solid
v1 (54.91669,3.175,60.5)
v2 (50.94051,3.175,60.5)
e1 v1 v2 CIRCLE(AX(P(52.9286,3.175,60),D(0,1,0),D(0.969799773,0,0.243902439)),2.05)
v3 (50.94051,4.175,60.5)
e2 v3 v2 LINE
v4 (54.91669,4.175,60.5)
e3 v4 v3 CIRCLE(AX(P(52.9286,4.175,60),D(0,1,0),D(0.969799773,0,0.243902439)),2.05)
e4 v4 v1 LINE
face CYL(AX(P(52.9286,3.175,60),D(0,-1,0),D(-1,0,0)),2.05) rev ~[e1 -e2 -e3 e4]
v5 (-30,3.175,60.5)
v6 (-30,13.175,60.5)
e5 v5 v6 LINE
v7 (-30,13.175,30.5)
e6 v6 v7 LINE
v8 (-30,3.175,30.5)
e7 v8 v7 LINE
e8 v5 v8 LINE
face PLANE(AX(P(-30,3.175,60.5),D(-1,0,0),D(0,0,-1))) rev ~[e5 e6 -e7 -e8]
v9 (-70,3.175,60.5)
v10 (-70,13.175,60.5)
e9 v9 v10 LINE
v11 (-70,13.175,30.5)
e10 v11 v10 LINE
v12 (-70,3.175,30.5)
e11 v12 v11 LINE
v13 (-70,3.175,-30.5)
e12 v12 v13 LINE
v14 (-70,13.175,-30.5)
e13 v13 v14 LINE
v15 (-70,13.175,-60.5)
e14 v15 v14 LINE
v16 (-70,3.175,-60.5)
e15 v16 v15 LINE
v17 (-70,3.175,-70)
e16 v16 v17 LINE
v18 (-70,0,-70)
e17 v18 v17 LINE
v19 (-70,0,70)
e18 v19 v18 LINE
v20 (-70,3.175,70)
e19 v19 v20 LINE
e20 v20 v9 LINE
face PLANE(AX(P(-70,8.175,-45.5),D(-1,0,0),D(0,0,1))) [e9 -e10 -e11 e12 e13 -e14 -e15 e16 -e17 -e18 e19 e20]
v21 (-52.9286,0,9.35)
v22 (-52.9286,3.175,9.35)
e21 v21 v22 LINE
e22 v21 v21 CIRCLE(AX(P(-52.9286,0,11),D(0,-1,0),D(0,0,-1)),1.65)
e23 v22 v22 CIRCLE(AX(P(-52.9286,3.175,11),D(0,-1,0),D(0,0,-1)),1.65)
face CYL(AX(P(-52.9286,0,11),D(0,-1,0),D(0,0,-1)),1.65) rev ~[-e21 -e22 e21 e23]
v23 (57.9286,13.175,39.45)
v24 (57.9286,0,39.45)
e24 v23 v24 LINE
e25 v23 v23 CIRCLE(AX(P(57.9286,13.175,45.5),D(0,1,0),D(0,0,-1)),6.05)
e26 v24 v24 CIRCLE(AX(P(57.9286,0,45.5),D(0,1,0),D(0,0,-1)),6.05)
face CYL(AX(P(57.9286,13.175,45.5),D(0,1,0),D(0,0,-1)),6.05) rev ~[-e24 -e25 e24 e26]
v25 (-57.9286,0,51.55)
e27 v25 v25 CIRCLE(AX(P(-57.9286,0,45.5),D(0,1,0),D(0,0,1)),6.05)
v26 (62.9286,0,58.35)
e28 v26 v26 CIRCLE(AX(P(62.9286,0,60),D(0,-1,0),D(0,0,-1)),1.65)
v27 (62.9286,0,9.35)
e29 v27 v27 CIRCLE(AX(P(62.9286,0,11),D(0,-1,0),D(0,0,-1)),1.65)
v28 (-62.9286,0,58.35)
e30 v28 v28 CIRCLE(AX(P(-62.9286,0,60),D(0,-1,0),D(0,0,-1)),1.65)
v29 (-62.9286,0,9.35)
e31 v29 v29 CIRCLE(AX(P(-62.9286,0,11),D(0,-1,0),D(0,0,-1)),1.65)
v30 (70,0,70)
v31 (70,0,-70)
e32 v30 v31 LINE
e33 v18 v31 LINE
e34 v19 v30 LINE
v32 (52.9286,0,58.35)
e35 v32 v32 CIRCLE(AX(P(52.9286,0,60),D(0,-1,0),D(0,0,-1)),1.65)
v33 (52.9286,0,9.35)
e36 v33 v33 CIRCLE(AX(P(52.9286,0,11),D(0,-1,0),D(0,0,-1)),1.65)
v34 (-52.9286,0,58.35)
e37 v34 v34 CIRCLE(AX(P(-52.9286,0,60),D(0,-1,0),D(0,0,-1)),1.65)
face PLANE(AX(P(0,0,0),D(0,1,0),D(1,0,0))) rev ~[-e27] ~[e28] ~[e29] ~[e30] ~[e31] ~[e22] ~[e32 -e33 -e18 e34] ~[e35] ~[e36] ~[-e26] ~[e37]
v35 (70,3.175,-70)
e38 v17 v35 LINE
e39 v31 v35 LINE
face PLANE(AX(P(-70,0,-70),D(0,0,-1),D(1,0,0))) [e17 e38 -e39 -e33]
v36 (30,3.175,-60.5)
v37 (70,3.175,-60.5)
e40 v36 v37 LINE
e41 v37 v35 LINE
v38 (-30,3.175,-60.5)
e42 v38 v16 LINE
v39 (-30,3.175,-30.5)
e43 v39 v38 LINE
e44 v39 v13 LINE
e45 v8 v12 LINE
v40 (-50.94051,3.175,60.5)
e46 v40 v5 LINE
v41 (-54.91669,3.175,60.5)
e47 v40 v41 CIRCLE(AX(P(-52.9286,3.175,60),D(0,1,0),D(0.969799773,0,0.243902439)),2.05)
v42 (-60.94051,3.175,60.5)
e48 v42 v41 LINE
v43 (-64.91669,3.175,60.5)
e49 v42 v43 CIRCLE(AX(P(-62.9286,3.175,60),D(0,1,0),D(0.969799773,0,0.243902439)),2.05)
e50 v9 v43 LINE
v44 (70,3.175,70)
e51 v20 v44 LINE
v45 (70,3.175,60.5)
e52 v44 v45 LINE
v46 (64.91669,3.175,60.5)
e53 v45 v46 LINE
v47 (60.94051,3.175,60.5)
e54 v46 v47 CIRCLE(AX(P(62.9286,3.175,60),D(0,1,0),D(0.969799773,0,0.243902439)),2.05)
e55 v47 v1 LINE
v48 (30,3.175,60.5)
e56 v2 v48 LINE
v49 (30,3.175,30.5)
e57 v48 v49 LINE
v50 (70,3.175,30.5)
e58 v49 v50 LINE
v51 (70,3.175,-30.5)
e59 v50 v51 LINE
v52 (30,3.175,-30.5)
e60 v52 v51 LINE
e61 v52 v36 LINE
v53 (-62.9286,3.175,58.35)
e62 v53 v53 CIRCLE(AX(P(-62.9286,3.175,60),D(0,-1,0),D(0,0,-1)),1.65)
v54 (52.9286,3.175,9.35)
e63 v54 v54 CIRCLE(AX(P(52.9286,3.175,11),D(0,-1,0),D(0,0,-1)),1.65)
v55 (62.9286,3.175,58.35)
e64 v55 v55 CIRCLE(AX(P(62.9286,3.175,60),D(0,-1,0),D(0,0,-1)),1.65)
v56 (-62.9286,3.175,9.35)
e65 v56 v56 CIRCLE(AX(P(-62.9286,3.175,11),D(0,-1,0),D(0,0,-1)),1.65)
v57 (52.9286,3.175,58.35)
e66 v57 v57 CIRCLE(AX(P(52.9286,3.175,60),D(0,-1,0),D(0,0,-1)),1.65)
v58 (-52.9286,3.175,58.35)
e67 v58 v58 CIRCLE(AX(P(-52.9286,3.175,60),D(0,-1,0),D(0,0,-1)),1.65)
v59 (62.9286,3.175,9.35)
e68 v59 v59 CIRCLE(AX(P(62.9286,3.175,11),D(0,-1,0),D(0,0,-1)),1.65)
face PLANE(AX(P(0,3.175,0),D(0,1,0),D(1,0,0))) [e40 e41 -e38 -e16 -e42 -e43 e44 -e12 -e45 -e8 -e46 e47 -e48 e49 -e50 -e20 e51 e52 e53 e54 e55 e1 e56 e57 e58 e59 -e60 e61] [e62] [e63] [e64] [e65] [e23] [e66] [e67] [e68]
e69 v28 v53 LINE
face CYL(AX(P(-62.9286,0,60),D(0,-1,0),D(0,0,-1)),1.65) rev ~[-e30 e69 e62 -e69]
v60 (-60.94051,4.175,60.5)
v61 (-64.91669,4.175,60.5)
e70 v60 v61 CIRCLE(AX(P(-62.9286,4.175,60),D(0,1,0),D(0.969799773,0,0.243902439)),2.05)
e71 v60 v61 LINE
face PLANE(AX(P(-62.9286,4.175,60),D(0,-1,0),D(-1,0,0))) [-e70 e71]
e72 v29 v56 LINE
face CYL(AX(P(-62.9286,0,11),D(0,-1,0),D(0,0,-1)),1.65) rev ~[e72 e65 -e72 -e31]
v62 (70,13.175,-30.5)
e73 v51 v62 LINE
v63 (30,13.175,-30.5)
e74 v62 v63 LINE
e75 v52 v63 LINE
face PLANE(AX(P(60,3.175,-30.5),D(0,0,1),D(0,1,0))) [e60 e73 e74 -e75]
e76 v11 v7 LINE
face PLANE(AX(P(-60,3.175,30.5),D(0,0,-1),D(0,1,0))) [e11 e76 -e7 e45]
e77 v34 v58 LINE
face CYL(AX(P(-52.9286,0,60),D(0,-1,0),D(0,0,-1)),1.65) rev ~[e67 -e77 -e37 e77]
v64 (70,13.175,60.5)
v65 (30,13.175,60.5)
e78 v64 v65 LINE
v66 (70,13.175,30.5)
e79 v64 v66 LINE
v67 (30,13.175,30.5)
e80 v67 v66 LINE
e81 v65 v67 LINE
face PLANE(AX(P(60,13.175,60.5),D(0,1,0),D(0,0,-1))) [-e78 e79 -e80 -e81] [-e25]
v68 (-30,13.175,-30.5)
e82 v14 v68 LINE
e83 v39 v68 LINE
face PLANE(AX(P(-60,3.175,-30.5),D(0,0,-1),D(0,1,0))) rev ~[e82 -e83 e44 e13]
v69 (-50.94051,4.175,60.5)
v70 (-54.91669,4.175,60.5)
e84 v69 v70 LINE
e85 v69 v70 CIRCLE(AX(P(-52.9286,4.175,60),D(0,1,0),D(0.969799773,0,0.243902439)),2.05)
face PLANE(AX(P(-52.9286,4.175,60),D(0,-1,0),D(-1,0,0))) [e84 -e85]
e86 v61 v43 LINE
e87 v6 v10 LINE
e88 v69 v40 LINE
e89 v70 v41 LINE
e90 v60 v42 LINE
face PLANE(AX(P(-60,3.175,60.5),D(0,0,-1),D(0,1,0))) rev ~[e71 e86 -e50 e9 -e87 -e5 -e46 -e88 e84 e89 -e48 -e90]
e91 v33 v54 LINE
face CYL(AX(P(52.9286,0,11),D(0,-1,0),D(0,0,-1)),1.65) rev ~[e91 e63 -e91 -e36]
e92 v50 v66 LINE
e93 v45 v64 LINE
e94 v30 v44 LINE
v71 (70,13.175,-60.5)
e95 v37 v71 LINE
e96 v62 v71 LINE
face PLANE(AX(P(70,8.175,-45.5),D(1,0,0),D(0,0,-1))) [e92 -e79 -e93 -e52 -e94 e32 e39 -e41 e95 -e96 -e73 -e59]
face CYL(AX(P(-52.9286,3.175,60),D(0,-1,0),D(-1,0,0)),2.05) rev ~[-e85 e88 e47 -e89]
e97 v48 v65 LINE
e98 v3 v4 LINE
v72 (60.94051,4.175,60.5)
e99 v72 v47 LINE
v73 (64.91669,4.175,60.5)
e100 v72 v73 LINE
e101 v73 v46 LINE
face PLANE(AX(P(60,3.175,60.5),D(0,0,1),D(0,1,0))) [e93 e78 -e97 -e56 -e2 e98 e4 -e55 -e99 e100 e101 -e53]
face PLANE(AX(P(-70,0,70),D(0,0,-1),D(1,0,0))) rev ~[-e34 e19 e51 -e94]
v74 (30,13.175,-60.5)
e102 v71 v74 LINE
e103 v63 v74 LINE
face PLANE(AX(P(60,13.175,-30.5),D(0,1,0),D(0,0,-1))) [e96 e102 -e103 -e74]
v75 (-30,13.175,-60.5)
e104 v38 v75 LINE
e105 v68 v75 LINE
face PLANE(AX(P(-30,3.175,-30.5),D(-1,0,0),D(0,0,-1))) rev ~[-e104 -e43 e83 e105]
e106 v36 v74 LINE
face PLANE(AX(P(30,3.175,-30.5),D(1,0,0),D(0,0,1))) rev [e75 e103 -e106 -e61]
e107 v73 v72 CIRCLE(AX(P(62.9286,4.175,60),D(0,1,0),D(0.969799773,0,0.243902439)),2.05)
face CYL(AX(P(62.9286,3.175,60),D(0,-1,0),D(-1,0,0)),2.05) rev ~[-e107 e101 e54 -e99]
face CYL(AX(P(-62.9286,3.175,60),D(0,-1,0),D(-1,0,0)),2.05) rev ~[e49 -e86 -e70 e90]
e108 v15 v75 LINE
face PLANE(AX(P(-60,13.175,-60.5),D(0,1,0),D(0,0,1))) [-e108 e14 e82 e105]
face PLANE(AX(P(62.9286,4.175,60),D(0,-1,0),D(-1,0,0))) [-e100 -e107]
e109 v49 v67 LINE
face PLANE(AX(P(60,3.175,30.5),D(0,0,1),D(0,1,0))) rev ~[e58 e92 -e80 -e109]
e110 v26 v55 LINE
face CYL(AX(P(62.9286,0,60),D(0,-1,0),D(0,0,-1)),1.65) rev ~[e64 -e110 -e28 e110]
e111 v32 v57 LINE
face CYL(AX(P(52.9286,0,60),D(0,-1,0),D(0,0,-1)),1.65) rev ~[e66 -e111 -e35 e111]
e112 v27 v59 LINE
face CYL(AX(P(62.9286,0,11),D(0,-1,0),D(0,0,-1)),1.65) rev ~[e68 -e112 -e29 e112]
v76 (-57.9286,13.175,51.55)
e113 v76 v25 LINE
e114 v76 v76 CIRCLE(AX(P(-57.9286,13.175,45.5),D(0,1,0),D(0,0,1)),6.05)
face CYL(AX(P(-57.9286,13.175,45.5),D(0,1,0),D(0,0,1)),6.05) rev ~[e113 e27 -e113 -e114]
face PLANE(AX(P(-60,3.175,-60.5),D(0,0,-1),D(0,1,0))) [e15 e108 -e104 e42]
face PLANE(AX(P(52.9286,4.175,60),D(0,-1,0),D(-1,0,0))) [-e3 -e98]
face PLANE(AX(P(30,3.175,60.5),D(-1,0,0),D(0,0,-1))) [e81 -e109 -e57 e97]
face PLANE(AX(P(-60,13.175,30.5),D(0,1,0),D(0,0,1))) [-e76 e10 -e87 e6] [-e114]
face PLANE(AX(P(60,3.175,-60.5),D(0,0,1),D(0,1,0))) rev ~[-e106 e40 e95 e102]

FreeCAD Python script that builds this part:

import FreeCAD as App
import Part
import Sketcher
from FreeCAD import Vector

doc = App.newDocument("Part")
body = doc.addObject("PartDesign::Body", "Body")

# Sketch on XZ plane
sketch1 = doc.addObject("Sketcher::SketchObject", "Sketch")
body.addObject(sketch1)
sketch1.AttachmentSupport = (doc.XZ_Plane, [""])
sketch1.MapMode = "FlatFace"
sketch1.addGeometry([
    Part.LineSegment(Vector(-70, -70, 0), Vector(-70, 70, 0)),
    Part.LineSegment(Vector(-70, 70, 0), Vector(70, 70, 0)),
    Part.LineSegment(Vector(70, 70, 0), Vector(70, -70, 0)),
    Part.LineSegment(Vector(70, -70, 0), Vector(-70, -70, 0)),
], False)
sketch1.addConstraint([
    Sketcher.Constraint("Coincident", 0, 2, 1, 1),
    Sketcher.Constraint("Coincident", 1, 2, 2, 1),
    Sketcher.Constraint("Coincident", 2, 2, 3, 1),
    Sketcher.Constraint("Coincident", 3, 2, 0, 1),
    Sketcher.Constraint("Vertical", 0),
    Sketcher.Constraint("Horizontal", 1),
    Sketcher.Constraint("Vertical", 2),
    Sketcher.Constraint("Horizontal", 3),
    Sketcher.Constraint("Symmetric", 0, 2, 2, 2, -1, 1),
    Sketcher.Constraint("Equal", 3, 0),
    Sketcher.Constraint("DistanceX", 1, 1, 1, 2, 140.0),
])
pad1 = doc.addObject("PartDesign::Pad", "Pad")
body.addObject(pad1)
pad1.Profile = sketch1
pad1.Length = 3.175
pad1.Reversed = True

# Sketch on XZ plane
sketch2 = doc.addObject("Sketcher::SketchObject", "Sketch001")
body.addObject(sketch2)
sketch2.AttachmentSupport = (doc.XZ_Plane, [""])
sketch2.MapMode = "FlatFace"
sketch2.AttachmentOffset = App.Placement(Vector(0, 0, -3.175), App.Rotation())
sketch2.addGeometry([
    Part.LineSegment(Vector(30, 30, 0), Vector(30, 60, 0)),  # 0
    Part.LineSegment(Vector(30, 60, 0), Vector(60, 60, 0)),  # 1
    Part.LineSegment(Vector(60, 60, 0), Vector(60, 30, 0)),  # 2
    Part.LineSegment(Vector(60, 30, 0), Vector(30, 30, 0)),  # 3
    Part.LineSegment(Vector(-60, 30, 0), Vector(-60, 60, 0)),  # 4
    Part.LineSegment(Vector(-60, 60, 0), Vector(-30, 60, 0)),  # 5
    Part.LineSegment(Vector(-30, 60, 0), Vector(-30, 30, 0)),  # 6
    Part.LineSegment(Vector(-30, 30, 0), Vector(-60, 30, 0)),  # 7
    Part.LineSegment(Vector(-60, -60, 0), Vector(-60, -30, 0)),  # 8
    Part.LineSegment(Vector(-60, -30, 0), Vector(-30, -30, 0)),  # 9
    Part.LineSegment(Vector(-30, -30, 0), Vector(-30, -60, 0)),  # 10
    Part.LineSegment(Vector(-30, -60, 0), Vector(-60, -60, 0)),  # 11
], False)
sketch2.addConstraint([
    Sketcher.Constraint("Coincident", 0, 2, 1, 1),
    Sketcher.Constraint("Coincident", 1, 2, 2, 1),
    Sketcher.Constraint("Coincident", 2, 2, 3, 1),
    Sketcher.Constraint("Coincident", 3, 2, 0, 1),
    Sketcher.Constraint("Coincident", 4, 2, 5, 1),
    Sketcher.Constraint("Coincident", 5, 2, 6, 1),
    Sketcher.Constraint("Coincident", 6, 2, 7, 1),
    Sketcher.Constraint("Coincident", 7, 2, 4, 1),
    Sketcher.Constraint("Coincident", 8, 2, 9, 1),
    Sketcher.Constraint("Coincident", 9, 2, 10, 1),
    Sketcher.Constraint("Coincident", 10, 2, 11, 1),
    Sketcher.Constraint("Coincident", 11, 2, 8, 1),
    Sketcher.Constraint("Vertical", 0),
    Sketcher.Constraint("Horizontal", 1),
    Sketcher.Constraint("Vertical", 2),
    Sketcher.Constraint("Horizontal", 3),
    Sketcher.Constraint("Vertical", 4),
    Sketcher.Constraint("Horizontal", 5),
    Sketcher.Constraint("Vertical", 6),
    Sketcher.Constraint("Horizontal", 7),
    Sketcher.Constraint("Vertical", 8),
    Sketcher.Constraint("Horizontal", 9),
    Sketcher.Constraint("Vertical", 10),
    Sketcher.Constraint("Horizontal", 11),
    Sketcher.Constraint("Symmetric", 2, 2, 8, 2, -1, 1),
    Sketcher.Constraint("Symmetric", 0, 2, 10, 2, -1, 1),
    Sketcher.Constraint("Symmetric", 1, 2, 4, 2, -2),
    Sketcher.Constraint("Symmetric", 3, 2, 6, 2, -2),
    Sketcher.Constraint("Equal", 11, 0),
    Sketcher.Constraint("DistanceX", 1, 1, 1, 2, 30.0),
    Sketcher.Constraint("DistanceX", -1, 1, 0, 2, 30.0),
    Sketcher.Constraint("DistanceY", 8, 2, 7, 2, 61.0),
])
pad2 = doc.addObject("PartDesign::Pad", "Pad001")
body.addObject(pad2)
pad2.Profile = sketch2
pad2.Length = 10
pad2.Reversed = True

# Sketch on YZ plane
sketch3 = doc.addObject("Sketcher::SketchObject", "Sketch002")
body.addObject(sketch3)
sketch3.AttachmentSupport = (doc.YZ_Plane, [""])
sketch3.MapMode = "FlatFace"
sketch3.AttachmentOffset = App.Placement(Vector(0, 0, -60), App.Rotation())
sketch3.addGeometry([
    Part.LineSegment(Vector(13, 30, 0), Vector(3, 30, 0)),
    Part.LineSegment(Vector(3, 30, 0), Vector(3, 60, 0)),
    Part.LineSegment(Vector(3, 60, 0), Vector(13, 60, 0)),
    Part.LineSegment(Vector(13, 60, 0), Vector(13, 30, 0)),
], False)
sketch3.addConstraint([
    Sketcher.Constraint("Coincident", 0, 2, 1, 1),
    Sketcher.Constraint("Coincident", 1, 2, 2, 1),
    Sketcher.Constraint("Coincident", 2, 2, 3, 1),
    Sketcher.Constraint("Coincident", 3, 2, 0, 1),
    Sketcher.Constraint("Horizontal", 0),
    Sketcher.Constraint("Vertical", 1),
    Sketcher.Constraint("Horizontal", 2),
    Sketcher.Constraint("Vertical", 3),
    Sketcher.Constraint("DistanceX", 0, 2, 0, 1, 10.0),
    Sketcher.Constraint("DistanceY", 1, 1, 1, 2, 30.0),
    Sketcher.Constraint("DistanceY", -1, 1, 0, 2, 30.5),
    Sketcher.Constraint("DistanceX", -1, 1, 0, 2, 3.175),
])
pad3 = doc.addObject("PartDesign::Pad", "Pad002")
body.addObject(pad3)
pad3.Profile = sketch3
pad3.Length = 10
pad3.Reversed = True

# Sketch on YZ plane
sketch4 = doc.addObject("Sketcher::SketchObject", "Sketch003")
body.addObject(sketch4)
sketch4.AttachmentSupport = (doc.YZ_Plane, [""])
sketch4.MapMode = "FlatFace"
sketch4.AttachmentOffset = App.Placement(Vector(0, 0, 60), App.Rotation())
sketch4.addGeometry([
    Part.LineSegment(Vector(13, 60, 0), Vector(3, 60, 0)),
    Part.LineSegment(Vector(3, 60, 0), Vector(3, 30, 0)),
    Part.LineSegment(Vector(3, 30, 0), Vector(13, 30, 0)),
    Part.LineSegment(Vector(13, 30, 0), Vector(13, 60, 0)),
], False)
sketch4.addConstraint([
    Sketcher.Constraint("Coincident", 0, 2, 1, 1),
    Sketcher.Constraint("Coincident", 1, 2, 2, 1),
    Sketcher.Constraint("Coincident", 2, 2, 3, 1),
    Sketcher.Constraint("Coincident", 3, 2, 0, 1),
    Sketcher.Constraint("Horizontal", 0),
    Sketcher.Constraint("Vertical", 1),
    Sketcher.Constraint("Horizontal", 2),
    Sketcher.Constraint("Vertical", 3),
    Sketcher.Constraint("DistanceX", 0, 2, 0, 1, 10.0),
    Sketcher.Constraint("DistanceY", 1, 2, 1, 1, 30.0),
    Sketcher.Constraint("DistanceY", -1, 1, 0, 2, 60.5),
    Sketcher.Constraint("DistanceX", -1, 1, 0, 2, 3.175),
])
pad4 = doc.addObject("PartDesign::Pad", "Pad003")
body.addObject(pad4)
pad4.Profile = sketch4
pad4.Length = 10
doc.recompute()

mirrored = doc.addObject("PartDesign::Mirrored", "Mirrored")
body.addObject(mirrored)
mirrored.Originals = [pad2]
mirrored.MirrorPlane = (doc.YZ_Plane, [""])
body.Tip = mirrored

# Sketch on YZ plane
sketch5 = doc.addObject("Sketcher::SketchObject", "Sketch004")
body.addObject(sketch5)
sketch5.AttachmentSupport = (doc.YZ_Plane, [""])
sketch5.MapMode = "FlatFace"
sketch5.AttachmentOffset = App.Placement(Vector(0, 0, 60), App.Rotation())
sketch5.addGeometry([
    Part.LineSegment(Vector(13, -30, 0), Vector(3, -30, 0)),
    Part.LineSegment(Vector(3, -30, 0), Vector(3, -60, 0)),
    Part.LineSegment(Vector(3, -60, 0), Vector(13, -60, 0)),
    Part.LineSegment(Vector(13, -60, 0), Vector(13, -30, 0)),
], False)
sketch5.addConstraint([
    Sketcher.Constraint("Coincident", 0, 2, 1, 1),
    Sketcher.Constraint("Coincident", 1, 2, 2, 1),
    Sketcher.Constraint("Coincident", 2, 2, 3, 1),
    Sketcher.Constraint("Coincident", 3, 2, 0, 1),
    Sketcher.Constraint("Horizontal", 0),
    Sketcher.Constraint("Vertical", 1),
    Sketcher.Constraint("Horizontal", 2),
    Sketcher.Constraint("Vertical", 3),
    Sketcher.Constraint("DistanceX", 0, 2, 0, 1, 10.0),
    Sketcher.Constraint("DistanceY", 1, 2, 1, 1, 30.0),
    Sketcher.Constraint("DistanceY", 0, 2, -1, 1, 30.5),
    Sketcher.Constraint("DistanceX", -1, 1, 0, 2, 3.175),
])
pad5 = doc.addObject("PartDesign::Pad", "Pad004")
body.addObject(pad5)
pad5.Profile = sketch5
pad5.Length = 10

# Sketch on YZ plane
sketch6 = doc.addObject("Sketcher::SketchObject", "Sketch005")
body.addObject(sketch6)
sketch6.AttachmentSupport = (doc.YZ_Plane, [""])
sketch6.MapMode = "FlatFace"
sketch6.AttachmentOffset = App.Placement(Vector(0, 0, -60), App.Rotation())
sketch6.addGeometry([
    Part.LineSegment(Vector(13, -60, 0), Vector(3, -60, 0)),
    Part.LineSegment(Vector(3, -60, 0), Vector(3, -30, 0)),
    Part.LineSegment(Vector(3, -30, 0), Vector(13, -30, 0)),
    Part.LineSegment(Vector(13, -30, 0), Vector(13, -60, 0)),
], False)
sketch6.addConstraint([
    Sketcher.Constraint("Coincident", 0, 2, 1, 1),
    Sketcher.Constraint("Coincident", 1, 2, 2, 1),
    Sketcher.Constraint("Coincident", 2, 2, 3, 1),
    Sketcher.Constraint("Coincident", 3, 2, 0, 1),
    Sketcher.Constraint("Horizontal", 0),
    Sketcher.Constraint("Vertical", 1),
    Sketcher.Constraint("Horizontal", 2),
    Sketcher.Constraint("Vertical", 3),
    Sketcher.Constraint("DistanceX", 0, 2, 0, 1, 10.0),
    Sketcher.Constraint("DistanceY", 1, 1, 1, 2, 30.0),
    Sketcher.Constraint("DistanceY", 0, 2, -1, 1, 60.5),
    Sketcher.Constraint("DistanceX", -1, 1, 0, 2, 3.175),
])
pad6 = doc.addObject("PartDesign::Pad", "Pad005")
body.addObject(pad6)
pad6.Profile = sketch6
pad6.Length = 10
pad6.Reversed = True

# Sketch on XZ plane
sketch7 = doc.addObject("Sketcher::SketchObject", "Sketch006")
body.addObject(sketch7)
sketch7.AttachmentSupport = (doc.XZ_Plane, [""])
sketch7.MapMode = "FlatFace"
sketch7.AttachmentOffset = App.Placement(Vector(0, 0, -13.175), App.Rotation())
sketch7.addGeometry([
    Part.Circle(Vector(-58, 46, 0), Vector(0, 0, 1), 6),
    Part.Circle(Vector(58, 46, 0), Vector(0, 0, 1), 6),
], False)
sketch7.addConstraint([
    Sketcher.Constraint("Equal", 0, 1),
    Sketcher.Constraint("Symmetric", 0, 3, 1, 3, -2),
    Sketcher.Constraint("Diameter", 0, 12.1),
    Sketcher.Constraint("DistanceY", -1, 1, 0, 3, 45.5),
    Sketcher.Constraint("DistanceX", 0, 3, -1, 1, 57.9286),
])
pocket1 = doc.addObject("PartDesign::Pocket", "Pocket")
body.addObject(pocket1)
pocket1.Profile = sketch7
pocket1.Length = 13.175
pocket1.Reversed = True

# Sketch on XZ plane
sketch8 = doc.addObject("Sketcher::SketchObject", "Sketch007")
body.addObject(sketch8)
sketch8.AttachmentSupport = (doc.XZ_Plane, [""])
sketch8.MapMode = "FlatFace"
sketch8.addGeometry([
    Part.Circle(Vector(62.9, 11, 0), Vector(0, 0, 1), 1.6),  # 0
    Part.Circle(Vector(52.9, 11, 0), Vector(0, 0, 1), 1.6),  # 1
    Part.Circle(Vector(62.9, 60, 0), Vector(0, 0, 1), 1.6),  # 2
    Part.Circle(Vector(52.9, 60, 0), Vector(0, 0, 1), 1.6),  # 3
    Part.Circle(Vector(-52.9, 11, 0), Vector(0, 0, 1), 1.6),  # 4
    Part.Circle(Vector(-62.9, 11, 0), Vector(0, 0, 1), 1.6),  # 5
    Part.Circle(Vector(-52.9, 60, 0), Vector(0, 0, 1), 1.6),  # 6
    Part.Circle(Vector(-62.9, 60, 0), Vector(0, 0, 1), 1.6),  # 7
], False)
sketch8.addConstraint([
    Sketcher.Constraint("Equal", 0, 1),
    Sketcher.Constraint("Equal", 1, 2),
    Sketcher.Constraint("Equal", 2, 3),
    Sketcher.Constraint("Equal", 3, 4),
    Sketcher.Constraint("Equal", 4, 5),
    Sketcher.Constraint("Equal", 5, 6),
    Sketcher.Constraint("Equal", 6, 7),
    Sketcher.Constraint("Symmetric", 1, 3, 4, 3, -2),
    Sketcher.Constraint("Symmetric", 0, 3, 5, 3, -2),
    Sketcher.Constraint("Symmetric", 3, 3, 6, 3, -2),
    Sketcher.Constraint("Symmetric", 2, 3, 7, 3, -2),
    Sketcher.Constraint("Horizontal", 0, 3, 1, 3),
    Sketcher.Constraint("Horizontal", 2, 3, 3, 3),
    Sketcher.Constraint("Vertical", 0, 3, 2, 3),
    Sketcher.Constraint("Vertical", 1, 3, 3, 3),
    Sketcher.Constraint("Diameter", 0, 3.3),
    Sketcher.Constraint("DistanceY", -1, 1, 0, 3, 11.0),
    Sketcher.Constraint("DistanceY", -1, 1, 2, 3, 60.0),
    Sketcher.Constraint("DistanceX", 1, 3, 0, 3, 10.0),
    Sketcher.Constraint("DistanceX", -1, 1, 0, 3, 62.9286),
])
pocket2 = doc.addObject("PartDesign::Pocket", "Pocket001")
body.addObject(pocket2)
pocket2.Profile = sketch8
pocket2.Length = 3.175

# Sketch on XZ plane
sketch9 = doc.addObject("Sketcher::SketchObject", "Sketch008")
body.addObject(sketch9)
sketch9.AttachmentSupport = (doc.XZ_Plane, [""])
sketch9.MapMode = "FlatFace"
sketch9.AttachmentOffset = App.Placement(Vector(0, 0, -3.175), App.Rotation())
sketch9.addGeometry([
    Part.Circle(Vector(-62.9, 60, 0), Vector(0, 0, 1), 2),
    Part.Circle(Vector(-52.9, 60, 0), Vector(0, 0, 1), 2),
    Part.Circle(Vector(52.9, 60, 0), Vector(0, 0, 1), 2),
    Part.Circle(Vector(62.9, 60, 0), Vector(0, 0, 1), 2),
], False)
sketch9.addConstraint([
    Sketcher.Constraint("Equal", 0, 1),
    Sketcher.Constraint("Equal", 1, 2),
    Sketcher.Constraint("Equal", 2, 3),
    Sketcher.Constraint("Symmetric", 1, 3, 2, 3, -2),
    Sketcher.Constraint("Symmetric", 0, 3, 3, 3, -2),
    Sketcher.Constraint("Horizontal", 0, 3, 1, 3),
    Sketcher.Constraint("Diameter", 0, 4.1),
    Sketcher.Constraint("DistanceY", -1, 1, 0, 3, 60.0),
    Sketcher.Constraint("DistanceX", 0, 3, 1, 3, 10.0),
    Sketcher.Constraint("DistanceX", 0, 3, -1, 1, 62.9286),
])
pocket3 = doc.addObject("PartDesign::Pocket", "Pocket002")
body.addObject(pocket3)
pocket3.Profile = sketch9
pocket3.Length = 1

doc.recompute()
